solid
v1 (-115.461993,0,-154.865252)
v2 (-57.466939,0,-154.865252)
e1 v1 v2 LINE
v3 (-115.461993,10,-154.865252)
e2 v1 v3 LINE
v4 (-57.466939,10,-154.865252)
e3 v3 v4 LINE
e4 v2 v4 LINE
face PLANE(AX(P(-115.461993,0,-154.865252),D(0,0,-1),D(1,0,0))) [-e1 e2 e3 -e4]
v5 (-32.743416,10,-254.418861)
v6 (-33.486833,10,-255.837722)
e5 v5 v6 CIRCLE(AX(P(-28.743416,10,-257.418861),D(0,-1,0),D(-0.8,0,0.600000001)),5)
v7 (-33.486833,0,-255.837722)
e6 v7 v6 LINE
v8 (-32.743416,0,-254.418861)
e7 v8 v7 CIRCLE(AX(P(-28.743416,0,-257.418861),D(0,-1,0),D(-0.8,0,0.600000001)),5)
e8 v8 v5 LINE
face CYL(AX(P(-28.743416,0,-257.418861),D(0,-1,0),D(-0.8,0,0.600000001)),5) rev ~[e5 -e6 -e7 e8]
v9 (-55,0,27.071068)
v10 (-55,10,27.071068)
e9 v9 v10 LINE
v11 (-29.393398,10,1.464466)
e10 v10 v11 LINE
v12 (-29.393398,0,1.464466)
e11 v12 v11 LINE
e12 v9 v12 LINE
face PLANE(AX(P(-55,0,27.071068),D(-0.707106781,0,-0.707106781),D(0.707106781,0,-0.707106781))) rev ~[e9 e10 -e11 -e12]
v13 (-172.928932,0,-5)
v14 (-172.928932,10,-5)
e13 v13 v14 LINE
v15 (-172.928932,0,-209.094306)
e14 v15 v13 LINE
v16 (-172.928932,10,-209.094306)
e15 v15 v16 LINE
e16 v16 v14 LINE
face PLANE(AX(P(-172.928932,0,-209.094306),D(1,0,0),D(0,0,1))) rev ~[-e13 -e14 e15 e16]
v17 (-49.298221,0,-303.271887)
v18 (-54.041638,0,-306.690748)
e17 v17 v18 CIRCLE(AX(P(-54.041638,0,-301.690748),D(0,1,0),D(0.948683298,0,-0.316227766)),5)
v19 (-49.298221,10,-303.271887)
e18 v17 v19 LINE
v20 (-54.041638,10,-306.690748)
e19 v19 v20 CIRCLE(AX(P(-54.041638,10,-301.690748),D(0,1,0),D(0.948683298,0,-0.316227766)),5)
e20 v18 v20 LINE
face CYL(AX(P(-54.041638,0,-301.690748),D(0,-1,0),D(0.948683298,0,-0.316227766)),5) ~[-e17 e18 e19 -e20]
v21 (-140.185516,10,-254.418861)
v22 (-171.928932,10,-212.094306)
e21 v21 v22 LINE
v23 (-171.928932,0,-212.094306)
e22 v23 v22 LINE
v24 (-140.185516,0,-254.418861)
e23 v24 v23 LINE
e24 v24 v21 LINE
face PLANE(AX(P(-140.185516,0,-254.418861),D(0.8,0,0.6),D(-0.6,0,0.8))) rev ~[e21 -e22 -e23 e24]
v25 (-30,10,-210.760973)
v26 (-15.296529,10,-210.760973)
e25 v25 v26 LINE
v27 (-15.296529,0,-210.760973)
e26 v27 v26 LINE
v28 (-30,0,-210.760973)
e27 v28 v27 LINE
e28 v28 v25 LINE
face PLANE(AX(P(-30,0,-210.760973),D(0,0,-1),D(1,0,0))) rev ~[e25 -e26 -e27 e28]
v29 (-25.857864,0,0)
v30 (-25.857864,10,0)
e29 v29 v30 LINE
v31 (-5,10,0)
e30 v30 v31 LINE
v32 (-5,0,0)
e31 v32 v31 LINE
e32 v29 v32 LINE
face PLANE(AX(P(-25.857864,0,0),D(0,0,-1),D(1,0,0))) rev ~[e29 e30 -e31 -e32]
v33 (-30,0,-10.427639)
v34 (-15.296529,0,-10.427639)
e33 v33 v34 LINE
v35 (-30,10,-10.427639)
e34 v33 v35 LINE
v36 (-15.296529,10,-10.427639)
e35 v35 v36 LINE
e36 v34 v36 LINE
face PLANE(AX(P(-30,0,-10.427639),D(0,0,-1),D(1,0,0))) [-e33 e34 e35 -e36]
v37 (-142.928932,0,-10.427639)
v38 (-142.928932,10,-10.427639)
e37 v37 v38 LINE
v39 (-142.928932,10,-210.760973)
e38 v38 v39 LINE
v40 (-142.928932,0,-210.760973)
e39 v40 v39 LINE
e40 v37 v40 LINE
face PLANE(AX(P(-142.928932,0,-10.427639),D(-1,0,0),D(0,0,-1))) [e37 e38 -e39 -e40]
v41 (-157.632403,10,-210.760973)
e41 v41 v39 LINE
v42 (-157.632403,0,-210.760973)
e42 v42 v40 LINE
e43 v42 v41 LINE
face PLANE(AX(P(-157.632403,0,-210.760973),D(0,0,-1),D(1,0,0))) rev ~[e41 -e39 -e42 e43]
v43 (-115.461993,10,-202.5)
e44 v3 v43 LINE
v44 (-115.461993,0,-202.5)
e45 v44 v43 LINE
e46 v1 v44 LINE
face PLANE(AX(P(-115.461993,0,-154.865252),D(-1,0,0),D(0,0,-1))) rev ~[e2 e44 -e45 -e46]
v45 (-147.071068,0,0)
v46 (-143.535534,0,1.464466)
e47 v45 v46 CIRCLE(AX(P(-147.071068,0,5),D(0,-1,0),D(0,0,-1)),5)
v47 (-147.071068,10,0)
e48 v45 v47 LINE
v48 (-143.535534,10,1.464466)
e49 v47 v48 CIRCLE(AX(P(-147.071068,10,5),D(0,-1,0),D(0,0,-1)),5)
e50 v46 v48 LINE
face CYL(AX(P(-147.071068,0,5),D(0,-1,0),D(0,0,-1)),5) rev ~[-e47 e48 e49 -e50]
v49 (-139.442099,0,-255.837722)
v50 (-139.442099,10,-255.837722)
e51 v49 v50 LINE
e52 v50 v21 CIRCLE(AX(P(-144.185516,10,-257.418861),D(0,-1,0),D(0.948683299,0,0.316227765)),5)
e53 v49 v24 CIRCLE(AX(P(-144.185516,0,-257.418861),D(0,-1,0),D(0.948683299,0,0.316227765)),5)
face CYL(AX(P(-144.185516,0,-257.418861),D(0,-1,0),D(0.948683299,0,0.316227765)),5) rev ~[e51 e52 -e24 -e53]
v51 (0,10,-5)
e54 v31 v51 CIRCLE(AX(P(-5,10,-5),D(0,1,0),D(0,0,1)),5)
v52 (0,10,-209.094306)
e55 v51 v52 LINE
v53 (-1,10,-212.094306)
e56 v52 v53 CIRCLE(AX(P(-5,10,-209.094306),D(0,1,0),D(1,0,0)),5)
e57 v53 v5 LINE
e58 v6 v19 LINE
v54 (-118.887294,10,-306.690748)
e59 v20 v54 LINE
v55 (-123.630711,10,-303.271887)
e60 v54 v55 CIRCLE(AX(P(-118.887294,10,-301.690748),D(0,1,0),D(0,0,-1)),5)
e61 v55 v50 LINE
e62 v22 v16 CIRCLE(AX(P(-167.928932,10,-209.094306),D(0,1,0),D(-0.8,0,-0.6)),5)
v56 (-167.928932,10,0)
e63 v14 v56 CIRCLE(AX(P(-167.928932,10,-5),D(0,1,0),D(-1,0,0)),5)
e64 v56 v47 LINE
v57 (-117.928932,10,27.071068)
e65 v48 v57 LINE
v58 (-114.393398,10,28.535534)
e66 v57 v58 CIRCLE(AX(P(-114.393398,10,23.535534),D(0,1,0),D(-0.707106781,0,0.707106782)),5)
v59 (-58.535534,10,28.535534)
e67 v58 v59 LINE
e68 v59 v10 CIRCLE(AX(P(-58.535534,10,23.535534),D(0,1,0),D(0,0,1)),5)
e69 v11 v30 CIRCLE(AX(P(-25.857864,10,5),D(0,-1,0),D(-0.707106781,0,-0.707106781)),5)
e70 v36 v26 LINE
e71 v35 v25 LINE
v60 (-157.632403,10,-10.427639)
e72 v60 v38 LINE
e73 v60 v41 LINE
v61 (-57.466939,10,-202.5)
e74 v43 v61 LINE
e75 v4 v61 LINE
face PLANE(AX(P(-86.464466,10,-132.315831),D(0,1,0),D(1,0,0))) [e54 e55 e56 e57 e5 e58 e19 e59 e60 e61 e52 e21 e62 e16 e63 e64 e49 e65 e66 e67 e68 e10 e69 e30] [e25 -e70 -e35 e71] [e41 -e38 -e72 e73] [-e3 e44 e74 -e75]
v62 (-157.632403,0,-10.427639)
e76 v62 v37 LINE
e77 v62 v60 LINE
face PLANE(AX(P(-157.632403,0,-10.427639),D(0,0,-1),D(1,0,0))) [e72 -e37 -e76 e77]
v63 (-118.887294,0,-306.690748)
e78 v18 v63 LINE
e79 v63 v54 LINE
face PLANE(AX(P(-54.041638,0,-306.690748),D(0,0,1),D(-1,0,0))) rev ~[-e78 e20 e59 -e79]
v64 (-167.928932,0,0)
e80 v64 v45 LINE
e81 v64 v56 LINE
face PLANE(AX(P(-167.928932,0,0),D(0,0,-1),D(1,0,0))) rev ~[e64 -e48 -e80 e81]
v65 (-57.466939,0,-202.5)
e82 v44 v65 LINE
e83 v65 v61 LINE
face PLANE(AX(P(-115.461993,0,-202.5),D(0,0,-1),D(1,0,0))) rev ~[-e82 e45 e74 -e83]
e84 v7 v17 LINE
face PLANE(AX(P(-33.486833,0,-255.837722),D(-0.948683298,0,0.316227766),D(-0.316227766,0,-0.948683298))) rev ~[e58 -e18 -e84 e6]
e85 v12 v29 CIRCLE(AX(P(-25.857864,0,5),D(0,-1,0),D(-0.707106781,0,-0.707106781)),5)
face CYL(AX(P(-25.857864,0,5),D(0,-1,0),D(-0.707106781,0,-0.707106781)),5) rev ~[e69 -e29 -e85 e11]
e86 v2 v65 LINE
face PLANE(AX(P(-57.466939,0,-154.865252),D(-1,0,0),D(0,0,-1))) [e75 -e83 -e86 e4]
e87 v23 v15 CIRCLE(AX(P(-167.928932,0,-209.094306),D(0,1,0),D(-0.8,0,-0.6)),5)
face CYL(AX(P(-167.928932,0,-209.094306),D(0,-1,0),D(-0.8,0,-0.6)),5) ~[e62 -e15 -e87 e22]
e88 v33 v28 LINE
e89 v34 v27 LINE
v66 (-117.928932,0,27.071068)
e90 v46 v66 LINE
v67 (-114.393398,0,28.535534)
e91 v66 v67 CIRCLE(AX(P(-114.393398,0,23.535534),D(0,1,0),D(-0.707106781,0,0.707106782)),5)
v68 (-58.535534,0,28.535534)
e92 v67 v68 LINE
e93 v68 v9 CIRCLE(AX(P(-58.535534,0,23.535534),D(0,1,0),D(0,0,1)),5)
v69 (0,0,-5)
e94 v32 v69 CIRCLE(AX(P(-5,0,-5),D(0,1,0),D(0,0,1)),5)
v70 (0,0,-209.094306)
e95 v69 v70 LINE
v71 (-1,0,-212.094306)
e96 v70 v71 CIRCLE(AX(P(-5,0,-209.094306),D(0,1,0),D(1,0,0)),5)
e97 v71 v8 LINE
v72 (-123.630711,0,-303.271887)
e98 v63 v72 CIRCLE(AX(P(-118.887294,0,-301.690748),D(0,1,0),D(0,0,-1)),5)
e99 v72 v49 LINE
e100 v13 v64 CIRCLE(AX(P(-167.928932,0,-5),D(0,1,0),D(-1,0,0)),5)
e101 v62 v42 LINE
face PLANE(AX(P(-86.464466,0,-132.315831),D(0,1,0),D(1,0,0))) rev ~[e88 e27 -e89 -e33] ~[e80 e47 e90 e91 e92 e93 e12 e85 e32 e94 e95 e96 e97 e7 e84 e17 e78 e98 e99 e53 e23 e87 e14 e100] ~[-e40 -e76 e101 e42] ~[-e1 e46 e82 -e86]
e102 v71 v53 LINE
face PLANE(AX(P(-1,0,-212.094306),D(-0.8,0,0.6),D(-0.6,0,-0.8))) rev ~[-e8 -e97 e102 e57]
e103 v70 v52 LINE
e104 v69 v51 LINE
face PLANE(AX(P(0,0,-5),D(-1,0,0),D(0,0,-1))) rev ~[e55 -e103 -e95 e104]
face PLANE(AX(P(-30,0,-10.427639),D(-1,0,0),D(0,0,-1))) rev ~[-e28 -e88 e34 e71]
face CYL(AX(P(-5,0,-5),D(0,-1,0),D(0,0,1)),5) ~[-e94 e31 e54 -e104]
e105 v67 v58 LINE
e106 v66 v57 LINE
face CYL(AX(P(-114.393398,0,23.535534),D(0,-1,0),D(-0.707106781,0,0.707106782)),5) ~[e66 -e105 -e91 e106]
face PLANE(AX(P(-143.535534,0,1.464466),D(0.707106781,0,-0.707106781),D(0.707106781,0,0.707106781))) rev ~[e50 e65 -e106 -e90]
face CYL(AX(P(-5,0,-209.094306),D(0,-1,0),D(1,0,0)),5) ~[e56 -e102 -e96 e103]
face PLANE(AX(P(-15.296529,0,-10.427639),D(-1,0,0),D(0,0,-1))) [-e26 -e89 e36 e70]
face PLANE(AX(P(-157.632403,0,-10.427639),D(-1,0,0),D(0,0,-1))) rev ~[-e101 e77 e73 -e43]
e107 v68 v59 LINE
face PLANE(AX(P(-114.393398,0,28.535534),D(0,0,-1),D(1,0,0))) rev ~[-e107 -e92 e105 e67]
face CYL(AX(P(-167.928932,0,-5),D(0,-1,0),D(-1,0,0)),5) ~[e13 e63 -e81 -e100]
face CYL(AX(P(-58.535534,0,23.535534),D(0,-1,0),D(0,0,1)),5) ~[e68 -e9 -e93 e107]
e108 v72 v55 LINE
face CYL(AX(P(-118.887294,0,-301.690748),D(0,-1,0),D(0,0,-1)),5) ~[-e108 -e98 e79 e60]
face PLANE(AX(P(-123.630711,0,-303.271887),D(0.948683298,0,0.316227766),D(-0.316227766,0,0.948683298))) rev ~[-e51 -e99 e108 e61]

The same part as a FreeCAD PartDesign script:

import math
import FreeCAD as App
import Part
import Sketcher
Q = App.Units.Quantity

doc = App.newDocument("Part")
body = doc.addObject("PartDesign::Body", "Body")

sketch1 = body.newObject("Sketcher::SketchObject", "Sketch")
sketch1.AttachmentSupport = (doc.getObject("XZ_Plane"), [""])
sketch1.MapMode = "FlatFace"
sketch1.addGeometry([
    Part.LineSegment(App.Vector(0, -5, 0), App.Vector(0, -209.094306, 0)),
    Part.ArcOfCircle(Part.Circle(App.Vector(-5, -209.094306, 0), App.Vector(0, 0, 1), 5), math.radians(-36.869898), math.radians(0)),
    Part.LineSegment(App.Vector(-1, -212.094306, 0), App.Vector(-32.743416, -254.418861, 0)),
    Part.ArcOfCircle(Part.Circle(App.Vector(-28.743416, -257.418861, 0), App.Vector(0, 0, 1), 5), math.radians(143.130102), math.radians(161.565051)),
    Part.LineSegment(App.Vector(-33.486833, -255.837722, 0), App.Vector(-49.298221, -303.271887, 0)),
    Part.ArcOfCircle(Part.Circle(App.Vector(-54.041638, -301.690748, 0), App.Vector(0, 0, 1), 5), math.radians(-90), math.radians(-18.434949)),
    Part.LineSegment(App.Vector(-54.041638, -306.690748, 0), App.Vector(-118.887294, -306.690748, 0)),
    Part.ArcOfCircle(Part.Circle(App.Vector(-118.887294, -301.690748, 0), App.Vector(0, 0, 1), 5), math.radians(-161.565051), math.radians(-90)),
    Part.LineSegment(App.Vector(-123.630711, -303.271887, 0), App.Vector(-139.442099, -255.837722, 0)),
    Part.ArcOfCircle(Part.Circle(App.Vector(-144.185516, -257.418861, 0), App.Vector(0, 0, 1), 5), math.radians(18.434949), math.radians(36.869898)),
    Part.LineSegment(App.Vector(-140.185516, -254.418861, 0), App.Vector(-171.928932, -212.094306, 0)),
    Part.ArcOfCircle(Part.Circle(App.Vector(-167.928932, -209.094306, 0), App.Vector(0, 0, 1), 5), math.radians(-180), math.radians(-143.130102)),
    Part.LineSegment(App.Vector(-172.928932, -209.094306, 0), App.Vector(-172.928932, -5, 0)),
    Part.ArcOfCircle(Part.Circle(App.Vector(-167.928932, -5, 0), App.Vector(0, 0, 1), 5), math.radians(90), math.radians(180)),
    Part.LineSegment(App.Vector(-167.928932, 0, 0), App.Vector(-147.071068, 0, 0)),
    Part.ArcOfCircle(Part.Circle(App.Vector(-147.071068, 5, 0), App.Vector(0, 0, 1), 5), math.radians(-90), math.radians(-45)),
    Part.LineSegment(App.Vector(-143.535534, 1.464466, 0), App.Vector(-117.928932, 27.071068, 0)),
    Part.ArcOfCircle(Part.Circle(App.Vector(-114.393398, 23.535534, 0), App.Vector(0, 0, 1), 5), math.radians(90), math.radians(135)),
    Part.LineSegment(App.Vector(-114.393398, 28.535534, 0), App.Vector(-58.535534, 28.535534, 0)),
    Part.ArcOfCircle(Part.Circle(App.Vector(-58.535534, 23.535534, 0), App.Vector(0, 0, 1), 5), math.radians(45), math.radians(90)),
    Part.LineSegment(App.Vector(-55, 27.071068, 0), App.Vector(-29.393398, 1.464466, 0)),
    Part.ArcOfCircle(Part.Circle(App.Vector(-25.857864, 5, 0), App.Vector(0, 0, 1), 5), math.radians(-135), math.radians(-90)),
    Part.LineSegment(App.Vector(-25.857864, 0, 0), App.Vector(-5, 0, 0)),
    Part.ArcOfCircle(Part.Circle(App.Vector(-5, -5, 0), App.Vector(0, 0, 1), 5), math.radians(0), math.radians(90)),
    Part.LineSegment(App.Vector(-142.928932, -10.427639, 0), App.Vector(-157.632403, -10.427639, 0)),
    Part.LineSegment(App.Vector(-157.632403, -10.427639, 0), App.Vector(-157.632403, -210.760973, 0)),
    Part.LineSegment(App.Vector(-157.632403, -210.760973, 0), App.Vector(-142.928932, -210.760973, 0)),
    Part.LineSegment(App.Vector(-142.928932, -210.760973, 0), App.Vector(-142.928932, -10.427639, 0)),
    Part.LineSegment(App.Vector(-15.296529, -10.427639, 0), App.Vector(-30, -10.427639, 0)),
    Part.LineSegment(App.Vector(-30, -10.427639, 0), App.Vector(-30, -210.760973, 0)),
    Part.LineSegment(App.Vector(-30, -210.760973, 0), App.Vector(-15.296529, -210.760973, 0)),
    Part.LineSegment(App.Vector(-15.296529, -210.760973, 0), App.Vector(-15.296529, -10.427639, 0)),
    Part.LineSegment(App.Vector(-57.466939, -154.865252, 0), App.Vector(-115.461993, -154.865252, 0)),
    Part.LineSegment(App.Vector(-115.461993, -154.865252, 0), App.Vector(-115.461993, -202.5, 0)),
    Part.LineSegment(App.Vector(-115.461993, -202.5, 0), App.Vector(-57.466939, -202.5, 0)),
    Part.LineSegment(App.Vector(-57.466939, -202.5, 0), App.Vector(-57.466939, -154.865252, 0)),
], False)
sketch1.addConstraint([
    Sketcher.Constraint("Tangent", 0, 2, 1, 2),
    Sketcher.Constraint("Tangent", 1, 1, 2, 1),
    Sketcher.Constraint("Tangent", 2, 2, 3, 1),
    Sketcher.Constraint("Tangent", 3, 2, 4, 1),
    Sketcher.Constraint("Tangent", 4, 2, 5, 2),
    Sketcher.Constraint("Tangent", 5, 1, 6, 1),
    Sketcher.Constraint("Tangent", 6, 2, 7, 2),
    Sketcher.Constraint("Tangent", 7, 1, 8, 1),
    Sketcher.Constraint("Tangent", 8, 2, 9, 1),
    Sketcher.Constraint("Tangent", 9, 2, 10, 1),
    Sketcher.Constraint("Tangent", 10, 2, 11, 2),
    Sketcher.Constraint("Tangent", 11, 1, 12, 1),
    Sketcher.Constraint("Tangent", 12, 2, 13, 2),
    Sketcher.Constraint("Tangent", 13, 1, 14, 1),
    Sketcher.Constraint("Tangent", 14, 2, 15, 1),
    Sketcher.Constraint("Tangent", 15, 2, 16, 1),
    Sketcher.Constraint("Tangent", 16, 2, 17, 2),
    Sketcher.Constraint("Tangent", 17, 1, 18, 1),
    Sketcher.Constraint("Tangent", 18, 2, 19, 2),
    Sketcher.Constraint("Tangent", 19, 1, 20, 1),
    Sketcher.Constraint("Tangent", 20, 2, 21, 1),
    Sketcher.Constraint("Tangent", 21, 2, 22, 1),
    Sketcher.Constraint("Tangent", 22, 2, 23, 2),
    Sketcher.Constraint("Tangent", 23, 1, 0, 1),
    Sketcher.Constraint("Coincident", 24, 2, 25, 1),
    Sketcher.Constraint("Coincident", 25, 2, 26, 1),
    Sketcher.Constraint("Coincident", 26, 2, 27, 1),
    Sketcher.Constraint("Coincident", 27, 2, 24, 1),
    Sketcher.Constraint("Coincident", 28, 2, 29, 1),
    Sketcher.Constraint("Coincident", 29, 2, 30, 1),
    Sketcher.Constraint("Coincident", 30, 2, 31, 1),
    Sketcher.Constraint("Coincident", 31, 2, 28, 1),
    Sketcher.Constraint("Coincident", 32, 2, 33, 1),
    Sketcher.Constraint("Coincident", 33, 2, 34, 1),
    Sketcher.Constraint("Coincident", 34, 2, 35, 1),
    Sketcher.Constraint("Coincident", 35, 2, 32, 1),
    Sketcher.Constraint("Vertical", 0),
    Sketcher.Constraint("Horizontal", 6),
    Sketcher.Constraint("Vertical", 12),
    Sketcher.Constraint("Horizontal", 14),
    Sketcher.Constraint("Horizontal", 18),
    Sketcher.Constraint("Horizontal", 22),
    Sketcher.Constraint("Horizontal", 24),
    Sketcher.Constraint("Vertical", 25),
    Sketcher.Constraint("Horizontal", 26),
    Sketcher.Constraint("Vertical", 27),
    Sketcher.Constraint("Horizontal", 28),
    Sketcher.Constraint("Vertical", 29),
    Sketcher.Constraint("Horizontal", 30),
    Sketcher.Constraint("Vertical", 31),
    Sketcher.Constraint("Horizontal", 32),
    Sketcher.Constraint("Vertical", 33),
    Sketcher.Constraint("Horizontal", 34),
    Sketcher.Constraint("Vertical", 35),
    Sketcher.Constraint("Equal", 1, 3),
    Sketcher.Constraint("Equal", 3, 5),
    Sketcher.Constraint("Equal", 5, 7),
    Sketcher.Constraint("Equal", 7, 9),
    Sketcher.Constraint("Equal", 9, 11),
    Sketcher.Constraint("Equal", 11, 13),
    Sketcher.Constraint("Equal", 13, 15),
    Sketcher.Constraint("Equal", 15, 17),
    Sketcher.Constraint("Equal", 17, 19),
    Sketcher.Constraint("Equal", 19, 21),
    Sketcher.Constraint("Equal", 21, 23),
    Sketcher.Constraint("PointOnObject", 0, 2, -2),
    Sketcher.Constraint("PointOnObject", 13, 1, -1),
    Sketcher.Constraint("PointOnObject", 21, 2, -1),
    Sketcher.Constraint("Perpendicular", 16, 20),
    Sketcher.Constraint("Horizontal", 3, 3, 9, 3),
    Sketcher.Constraint("Horizontal", 1, 3, 11, 3),
    Sketcher.Constraint("Horizontal", 4, 2, 7, 1),
    Sketcher.Constraint("Horizontal", 2, 2, 9, 2),
    Sketcher.Constraint("Horizontal", 16, 2, 19, 1),
    Sketcher.Constraint("Horizontal", 27, 2, 28, 2),
    Sketcher.Constraint("Horizontal", 26, 2, 29, 2),
    Sketcher.Constraint("Equal", 14, 22),
    Sketcher.Constraint("Equal", 26, 28),
    Sketcher.Constraint("Radius", 1, Q("5 mm")),
    Sketcher.Constraint("Distance", 4, Q("50 mm")),
    Sketcher.Constraint("DistanceX", 1, 1, -1, 1, Q("1 mm")),
    Sketcher.Constraint("DistanceX", 19, 1, -1, 1, Q("55 mm")),
    Sketcher.Constraint("DistanceX", 28, 2, -1, 1, Q("30 mm")),
    Sketcher.Constraint("DistanceX", 11, 3, 26, 2, Q("25 mm")),
    Sketcher.Constraint("DistanceY", 33, 2, -1, 1, Q("202.5 mm")),
    Sketcher.Constraint("DistanceX", 24, 2, 24, 1, Q("14.703471 mm")),
    Sketcher.Constraint("DistanceY", 33, 2, 33, 1, Q("47.634748 mm")),
    Sketcher.Constraint("DistanceX", 17, 3, -1, 1, Q("114.393398 mm")),
    Sketcher.Constraint("DistanceX", 8, 2, -1, 1, Q("139.442099 mm")),
    Sketcher.Constraint("DistanceX", 20, 2, -1, 1, Q("29.393398 mm")),
    Sketcher.Constraint("DistanceX", 9, 3, 3, 3, Q("115.442099 mm")),
    Sketcher.Constraint("DistanceX", 32, 2, 32, 1, Q("57.995054 mm")),
    Sketcher.Constraint("DistanceY", 0, 2, 0, 1, Q("204.094306 mm")),
    Sketcher.Constraint("DistanceY", 25, 2, 25, 1, Q("200.333333 mm")),
    Sketcher.Constraint("DistanceY", 24, 2, -1, 1, Q("10.427639 mm")),
    Sketcher.Constraint("DistanceX", 34, 2, -1, 1, Q("57.466939 mm")),
])
pad1 = body.newObject("PartDesign::Pad", "Pad")
pad1.Profile = sketch1
pad1.Length = 10
pad1.Reversed = True

doc.recompute()
